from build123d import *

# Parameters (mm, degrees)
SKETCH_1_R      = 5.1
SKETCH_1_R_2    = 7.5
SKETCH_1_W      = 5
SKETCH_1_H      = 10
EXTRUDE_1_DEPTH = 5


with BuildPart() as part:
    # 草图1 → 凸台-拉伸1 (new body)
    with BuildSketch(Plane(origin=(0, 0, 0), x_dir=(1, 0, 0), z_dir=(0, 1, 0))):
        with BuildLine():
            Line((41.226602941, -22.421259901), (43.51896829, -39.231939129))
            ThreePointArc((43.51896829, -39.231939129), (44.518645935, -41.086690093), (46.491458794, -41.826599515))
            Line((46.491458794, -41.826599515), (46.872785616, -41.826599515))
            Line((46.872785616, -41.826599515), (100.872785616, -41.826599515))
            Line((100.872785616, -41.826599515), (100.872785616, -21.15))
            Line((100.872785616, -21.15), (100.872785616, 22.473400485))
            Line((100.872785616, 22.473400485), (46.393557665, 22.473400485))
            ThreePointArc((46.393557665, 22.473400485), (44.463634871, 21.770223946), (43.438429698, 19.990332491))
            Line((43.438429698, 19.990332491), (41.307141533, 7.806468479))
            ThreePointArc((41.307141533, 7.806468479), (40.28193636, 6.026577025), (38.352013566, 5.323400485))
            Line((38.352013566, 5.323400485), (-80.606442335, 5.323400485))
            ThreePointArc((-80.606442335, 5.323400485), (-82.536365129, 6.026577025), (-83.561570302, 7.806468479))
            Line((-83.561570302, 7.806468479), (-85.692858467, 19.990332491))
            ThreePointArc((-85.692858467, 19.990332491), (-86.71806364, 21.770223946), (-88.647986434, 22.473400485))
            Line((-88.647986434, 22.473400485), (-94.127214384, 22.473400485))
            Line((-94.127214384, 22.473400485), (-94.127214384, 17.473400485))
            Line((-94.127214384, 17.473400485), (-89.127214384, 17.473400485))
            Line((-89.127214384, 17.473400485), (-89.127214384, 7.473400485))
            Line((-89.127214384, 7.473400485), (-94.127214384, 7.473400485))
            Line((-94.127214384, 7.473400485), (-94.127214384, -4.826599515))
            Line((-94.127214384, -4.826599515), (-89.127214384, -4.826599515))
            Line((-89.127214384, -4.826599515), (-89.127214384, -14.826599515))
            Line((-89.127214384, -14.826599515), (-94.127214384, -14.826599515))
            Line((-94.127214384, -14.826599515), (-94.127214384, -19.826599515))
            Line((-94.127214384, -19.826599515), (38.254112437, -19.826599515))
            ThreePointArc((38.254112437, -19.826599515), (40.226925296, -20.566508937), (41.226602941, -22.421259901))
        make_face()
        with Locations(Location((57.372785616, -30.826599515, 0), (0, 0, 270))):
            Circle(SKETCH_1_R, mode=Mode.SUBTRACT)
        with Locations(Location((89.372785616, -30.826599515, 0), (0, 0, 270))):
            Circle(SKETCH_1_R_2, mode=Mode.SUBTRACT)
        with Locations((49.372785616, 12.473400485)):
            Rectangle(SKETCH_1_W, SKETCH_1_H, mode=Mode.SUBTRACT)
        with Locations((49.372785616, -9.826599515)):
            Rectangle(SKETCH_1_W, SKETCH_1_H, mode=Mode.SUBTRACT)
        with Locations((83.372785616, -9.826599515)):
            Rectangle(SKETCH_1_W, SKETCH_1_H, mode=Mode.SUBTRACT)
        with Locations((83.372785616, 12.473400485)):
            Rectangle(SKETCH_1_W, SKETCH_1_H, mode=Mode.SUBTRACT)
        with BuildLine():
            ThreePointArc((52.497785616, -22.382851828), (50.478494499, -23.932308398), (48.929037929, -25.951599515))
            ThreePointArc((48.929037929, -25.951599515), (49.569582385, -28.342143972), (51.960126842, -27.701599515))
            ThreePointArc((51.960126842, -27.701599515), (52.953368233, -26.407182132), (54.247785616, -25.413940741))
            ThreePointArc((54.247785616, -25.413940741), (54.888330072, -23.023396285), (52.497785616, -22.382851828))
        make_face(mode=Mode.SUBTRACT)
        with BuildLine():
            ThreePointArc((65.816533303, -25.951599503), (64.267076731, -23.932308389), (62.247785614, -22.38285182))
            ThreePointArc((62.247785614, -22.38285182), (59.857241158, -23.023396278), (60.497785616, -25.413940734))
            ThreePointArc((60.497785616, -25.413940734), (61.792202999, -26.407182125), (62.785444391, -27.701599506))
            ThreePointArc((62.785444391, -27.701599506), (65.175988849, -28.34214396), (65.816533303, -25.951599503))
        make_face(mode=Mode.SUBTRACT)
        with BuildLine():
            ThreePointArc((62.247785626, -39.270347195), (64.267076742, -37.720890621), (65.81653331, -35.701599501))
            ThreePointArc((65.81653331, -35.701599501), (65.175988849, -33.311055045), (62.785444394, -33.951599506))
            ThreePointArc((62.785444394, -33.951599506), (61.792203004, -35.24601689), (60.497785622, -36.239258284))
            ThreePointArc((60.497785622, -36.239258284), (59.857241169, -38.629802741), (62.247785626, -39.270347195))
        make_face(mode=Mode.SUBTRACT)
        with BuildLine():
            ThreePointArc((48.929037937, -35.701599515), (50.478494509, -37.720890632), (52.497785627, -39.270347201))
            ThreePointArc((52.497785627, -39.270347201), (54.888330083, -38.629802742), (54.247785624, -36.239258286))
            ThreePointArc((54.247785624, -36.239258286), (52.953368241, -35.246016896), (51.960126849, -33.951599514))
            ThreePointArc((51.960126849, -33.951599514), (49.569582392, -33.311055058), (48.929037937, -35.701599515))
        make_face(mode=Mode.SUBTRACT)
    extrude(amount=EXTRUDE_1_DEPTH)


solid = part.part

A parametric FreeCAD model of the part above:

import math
import FreeCAD as App
import Part
import Sketcher

V = App.Vector


def add_polygon(sketch, points):
    """Adds a closed chain of lines whose ends are joined by coincident constraints."""
    first, n = sketch.GeometryCount, len(points)
    for a, b in zip(points, points[1:] + points[:1]):
        sketch.addGeometry(Part.LineSegment(App.Vector(*a, 0), App.Vector(*b, 0)), False)
    for i in range(n):
        sketch.addConstraint(Sketcher.Constraint("Coincident", first + i, 2, first + (i + 1) % n, 1))

doc = App.newDocument("Part")
body = doc.addObject("PartDesign::Body", "Body")

# Sketch on XZ plane
sketch1 = body.newObject("Sketcher::SketchObject", "Sketch")
sketch1.AttachmentSupport = (doc.getObject("XZ_Plane"), [""])
sketch1.MapMode = "FlatFace"
sketch1.addGeometry(Part.LineSegment(V(41.2, 22.4, 0), V(43.5, 39.2, 0)), False)  # 0
sketch1.addGeometry(Part.ArcOfCircle(Part.Circle(V(46.5, 38.8, 0), V(0, 0, 1), 3), math.radians(90), math.radians(172)), False)  # 1
sketch1.addGeometry(Part.LineSegment(V(46.5, 41.8, 0), V(100.9, 41.8, 0)), False)  # 2
sketch1.addGeometry(Part.LineSegment(V(100.9, 41.8, 0), V(100.9, -22.5, 0)), False)  # 3
sketch1.addGeometry(Part.LineSegment(V(100.9, -22.5, 0), V(46.4, -22.5, 0)), False)  # 4
sketch1.addGeometry(Part.ArcOfCircle(Part.Circle(V(46.4, -19.5, 0), V(0, 0, 1), 3), math.radians(-170), math.radians(-90)), False)  # 5
sketch1.addGeometry(Part.LineSegment(V(43.4, -20, 0), V(41.3, -7.8, 0)), False)  # 6
sketch1.addGeometry(Part.ArcOfCircle(Part.Circle(V(38.4, -8.3, 0), V(0, 0, 1), 3), math.radians(10), math.radians(90)), False)  # 7
sketch1.addGeometry(Part.LineSegment(V(38.4, -5.3, 0), V(-80.6, -5.3, 0)), False)  # 8
sketch1.addGeometry(Part.ArcOfCircle(Part.Circle(V(-80.6, -8.3, 0), V(0, 0, 1), 3), math.radians(90), math.radians(170)), False)  # 9
sketch1.addGeometry(Part.LineSegment(V(-83.6, -7.8, 0), V(-85.7, -20, 0)), False)  # 10
sketch1.addGeometry(Part.ArcOfCircle(Part.Circle(V(-88.6, -19.5, 0), V(0, 0, 1), 3), math.radians(-90), math.radians(-10)), False)  # 11
sketch1.addGeometry(Part.LineSegment(V(-88.6, -22.5, 0), V(-94.1, -22.5, 0)), False)  # 12
sketch1.addGeometry(Part.LineSegment(V(-94.1, -22.5, 0), V(-94.1, -17.5, 0)), False)  # 13
sketch1.addGeometry(Part.LineSegment(V(-94.1, -17.5, 0), V(-89.1, -17.5, 0)), False)  # 14
sketch1.addGeometry(Part.LineSegment(V(-89.1, -17.5, 0), V(-89.1, -7.5, 0)), False)  # 15
sketch1.addGeometry(Part.LineSegment(V(-89.1, -7.5, 0), V(-94.1, -7.5, 0)), False)  # 16
sketch1.addGeometry(Part.LineSegment(V(-94.1, -7.5, 0), V(-94.1, 4.8, 0)), False)  # 17
sketch1.addGeometry(Part.LineSegment(V(-94.1, 4.8, 0), V(-89.1, 4.8, 0)), False)  # 18
sketch1.addGeometry(Part.LineSegment(V(-89.1, 4.8, 0), V(-89.1, 14.8, 0)), False)  # 19
sketch1.addGeometry(Part.LineSegment(V(-89.1, 14.8, 0), V(-94.1, 14.8, 0)), False)  # 20
sketch1.addGeometry(Part.LineSegment(V(-94.1, 14.8, 0), V(-94.1, 19.8, 0)), False)  # 21
sketch1.addGeometry(Part.LineSegment(V(-94.1, 19.8, 0), V(38.3, 19.8, 0)), False)  # 22
sketch1.addGeometry(Part.ArcOfCircle(Part.Circle(V(38.3, 22.8, 0), V(0, 0, 1), 3), math.radians(-90), math.radians(-8)), False)  # 23
sketch1.addGeometry(Part.ArcOfCircle(Part.Circle(V(57.4, 30.8, 0), V(0, 0, 1), 9.7), math.radians(120), math.radians(150)), False)  # 24
sketch1.addGeometry(Part.ArcOfCircle(Part.Circle(V(50.4, 34.8, 0), V(0, 0, 1), 1.8), math.radians(150), math.radians(330)), False)  # 25
sketch1.addGeometry(Part.ArcOfCircle(Part.Circle(V(57.4, 30.8, 0), V(0, 0, 1), 6.2), math.radians(120), math.radians(150)), False)  # 26
sketch1.addGeometry(Part.ArcOfCircle(Part.Circle(V(53.4, 37.8, 0), V(0, 0, 1), 1.8), math.radians(-60), math.radians(120)), False)  # 27
sketch1.addGeometry(Part.ArcOfCircle(Part.Circle(V(57.4, 30.8, 0), V(0, 0, 1), 9.7), math.radians(-150), math.radians(-120)), False)  # 28
sketch1.addGeometry(Part.ArcOfCircle(Part.Circle(V(53.4, 23.9, 0), V(0, 0, 1), 1.8), math.radians(-120), math.radians(60)), False)  # 29
sketch1.addGeometry(Part.ArcOfCircle(Part.Circle(V(57.4, 30.8, 0), V(0, 0, 1), 6.2), math.radians(-150), math.radians(-120)), False)  # 30
sketch1.addGeometry(Part.ArcOfCircle(Part.Circle(V(50.4, 26.8, 0), V(0, 0, 1), 1.8), math.radians(30), math.radians(210)), False)  # 31
sketch1.addGeometry(Part.Circle(V(57.4, 30.8, 0), V(0, 0, 1), 5.1), False)  # 32
sketch1.addGeometry(Part.ArcOfCircle(Part.Circle(V(57.4, 30.8, 0), V(0, 0, 1), 9.7), math.radians(30), math.radians(60)), False)  # 33
sketch1.addGeometry(Part.ArcOfCircle(Part.Circle(V(61.4, 37.8, 0), V(0, 0, 1), 1.8), math.radians(60), math.radians(240)), False)  # 34
sketch1.addGeometry(Part.ArcOfCircle(Part.Circle(V(57.4, 30.8, 0), V(0, 0, 1), 6.3), math.radians(30), math.radians(60)), False)  # 35
sketch1.addGeometry(Part.ArcOfCircle(Part.Circle(V(64.3, 34.8, 0), V(0, 0, 1), 1.8), math.radians(-150), math.radians(30)), False)  # 36
sketch1.addGeometry(Part.ArcOfCircle(Part.Circle(V(57.4, 30.8, 0), V(0, 0, 1), 9.8), math.radians(-60), math.radians(-30)), False)  # 37
sketch1.addGeometry(Part.ArcOfCircle(Part.Circle(V(64.3, 26.8, 0), V(0, 0, 1), 1.8), math.radians(-30), math.radians(150)), False)  # 38
sketch1.addGeometry(Part.ArcOfCircle(Part.Circle(V(57.4, 30.8, 0), V(0, 0, 1), 6.3), math.radians(-60), math.radians(-30)), False)  # 39
sketch1.addGeometry(Part.ArcOfCircle(Part.Circle(V(61.4, 23.9, 0), V(0, 0, 1), 1.8), math.radians(120), math.radians(300)), False)  # 40
sketch1.addGeometry(Part.Circle(V(89.4, 30.8, 0), V(0, 0, 1), 7.5), False)  # 41
add_polygon(sketch1, [(51.9, 14.8), (46.9, 14.8), (46.9, 4.8), (51.9, 4.8)])  # lines 42-45
add_polygon(sketch1, [(51.9, -7.5), (46.9, -7.5), (46.9, -17.5), (51.9, -17.5)])  # lines 46-49
add_polygon(sketch1, [(85.9, 14.8), (80.9, 14.8), (80.9, 4.8), (85.9, 4.8)])  # lines 50-53
add_polygon(sketch1, [(85.9, -7.5), (80.9, -7.5), (80.9, -17.5), (85.9, -17.5)])  # lines 54-57
sketch1.addConstraint([
    Sketcher.Constraint("Tangent", 0, 2, 1, 2),
    Sketcher.Constraint("Tangent", 1, 1, 2, 1),
    Sketcher.Constraint("Coincident", 2, 2, 3, 1),
    Sketcher.Constraint("Coincident", 3, 2, 4, 1),
    Sketcher.Constraint("Tangent", 4, 2, 5, 2),
    Sketcher.Constraint("Tangent", 5, 1, 6, 1),
    Sketcher.Constraint("Tangent", 6, 2, 7, 1),
    Sketcher.Constraint("Tangent", 7, 2, 8, 1),
    Sketcher.Constraint("Tangent", 8, 2, 9, 1),
    Sketcher.Constraint("Tangent", 9, 2, 10, 1),
    Sketcher.Constraint("Tangent", 10, 2, 11, 2),
    Sketcher.Constraint("Tangent", 11, 1, 12, 1),
    Sketcher.Constraint("Coincident", 12, 2, 13, 1),
    Sketcher.Constraint("Coincident", 13, 2, 14, 1),
    Sketcher.Constraint("Coincident", 14, 2, 15, 1),
    Sketcher.Constraint("Coincident", 15, 2, 16, 1),
    Sketcher.Constraint("Coincident", 16, 2, 17, 1),
    Sketcher.Constraint("Coincident", 17, 2, 18, 1),
    Sketcher.Constraint("Coincident", 18, 2, 19, 1),
    Sketcher.Constraint("Coincident", 19, 2, 20, 1),
    Sketcher.Constraint("Coincident", 20, 2, 21, 1),
    Sketcher.Constraint("Coincident", 21, 2, 22, 1),
    Sketcher.Constraint("Tangent", 22, 2, 23, 1),
    Sketcher.Constraint("Tangent", 23, 2, 0, 1),
    Sketcher.Constraint("Tangent", 24, 2, 25, 1),
    Sketcher.Constraint("Tangent", 25, 2, 26, 2),
    Sketcher.Constraint("Tangent", 26, 1, 27, 1),
    Sketcher.Constraint("Tangent", 27, 2, 24, 1),
    Sketcher.Constraint("Tangent", 28, 2, 29, 1),
    Sketcher.Constraint("Tangent", 29, 2, 30, 2),
    Sketcher.Constraint("Tangent", 30, 1, 31, 1),
    Sketcher.Constraint("Tangent", 31, 2, 28, 1),
    Sketcher.Constraint("Tangent", 33, 2, 34, 1),
    Sketcher.Constraint("Tangent", 34, 2, 35, 2),
    Sketcher.Constraint("Tangent", 35, 1, 36, 1),
    Sketcher.Constraint("Tangent", 36, 2, 33, 1),
    Sketcher.Constraint("Tangent", 37, 2, 38, 1),
    Sketcher.Constraint("Tangent", 38, 2, 39, 2),
    Sketcher.Constraint("Tangent", 39, 1, 40, 1),
    Sketcher.Constraint("Tangent", 40, 2, 37, 1),
    Sketcher.Constraint("Horizontal", 2),
    Sketcher.Constraint("Vertical", 3),
    Sketcher.Constraint("Horizontal", 4),
    Sketcher.Constraint("Horizontal", 8),
    Sketcher.Constraint("Horizontal", 12),
    Sketcher.Constraint("Vertical", 13),
    Sketcher.Constraint("Horizontal", 14),
    Sketcher.Constraint("Vertical", 15),
    Sketcher.Constraint("Horizontal", 16),
    Sketcher.Constraint("Vertical", 17),
    Sketcher.Constraint("Horizontal", 18),
    Sketcher.Constraint("Vertical", 19),
    Sketcher.Constraint("Horizontal", 20),
    Sketcher.Constraint("Vertical", 21),
    Sketcher.Constraint("Horizontal", 22),
    Sketcher.Constraint("Horizontal", 42),
    Sketcher.Constraint("Vertical", 43),
    Sketcher.Constraint("Horizontal", 44),
    Sketcher.Constraint("Vertical", 45),
    Sketcher.Constraint("Horizontal", 46),
    Sketcher.Constraint("Vertical", 47),
    Sketcher.Constraint("Horizontal", 48),
    Sketcher.Constraint("Vertical", 49),
    Sketcher.Constraint("Horizontal", 50),
    Sketcher.Constraint("Vertical", 51),
    Sketcher.Constraint("Horizontal", 52),
    Sketcher.Constraint("Vertical", 53),
    Sketcher.Constraint("Horizontal", 54),
    Sketcher.Constraint("Vertical", 55),
    Sketcher.Constraint("Horizontal", 56),
    Sketcher.Constraint("Vertical", 57),
    Sketcher.Constraint("Coincident", 26, 3, 24, 3),
    Sketcher.Constraint("Coincident", 28, 3, 24, 3),
    Sketcher.Constraint("Coincident", 30, 3, 24, 3),
    Sketcher.Constraint("Coincident", 32, 3, 24, 3),
    Sketcher.Constraint("Coincident", 33, 3, 24, 3),
    Sketcher.Constraint("Coincident", 35, 3, 24, 3),
    Sketcher.Constraint("Coincident", 37, 3, 24, 3),
    Sketcher.Constraint("Coincident", 39, 3, 24, 3),
    Sketcher.Constraint("Equal", 1, 5),
    Sketcher.Constraint("Equal", 5, 7),
    Sketcher.Constraint("Equal", 7, 9),
    Sketcher.Constraint("Equal", 9, 11),
    Sketcher.Constraint("Equal", 11, 23),
    Sketcher.Constraint("Equal", 24, 28),
    Sketcher.Constraint("Equal", 27, 29),
    Sketcher.Constraint("Equal", 28, 33),
    Sketcher.Constraint("Equal", 31, 34),
    Sketcher.Constraint("Equal", 33, 37),
    Sketcher.Constraint("Equal", 36, 38),
    Sketcher.Constraint("Horizontal", 5, 3, 11, 3),
    Sketcher.Constraint("Horizontal", 27, 3, 34, 3),
    Sketcher.Constraint("Horizontal", 25, 3, 36, 3),
    Sketcher.Constraint("Horizontal", 31, 3, 38, 3),
    Sketcher.Constraint("Horizontal", 29, 3, 40, 3),
    Sketcher.Constraint("Horizontal", 39, 3, 41, 3),
    Sketcher.Constraint("Horizontal", 6, 2, 9, 2),
    Sketcher.Constraint("Horizontal", 20, 2, 42, 2),
    Sketcher.Constraint("Horizontal", 18, 2, 43, 2),
    Sketcher.Constraint("Horizontal", 16, 2, 46, 2),
    Sketcher.Constraint("Horizontal", 14, 2, 47, 2),
    Sketcher.Constraint("Horizontal", 45, 2, 50, 2),
    Sketcher.Constraint("Horizontal", 44, 2, 51, 2),
    Sketcher.Constraint("Horizontal", 49, 2, 54, 2),
    Sketcher.Constraint("Horizontal", 48, 2, 55, 2),
    Sketcher.Constraint("Vertical", 27, 3, 29, 3),
    Sketcher.Constraint("Vertical", 25, 3, 31, 3),
    Sketcher.Constraint("Vertical", 13, 2, 16, 2),
    Sketcher.Constraint("Vertical", 15, 2, 18, 2),
    Sketcher.Constraint("Vertical", 17, 2, 20, 2),
    Sketcher.Constraint("Vertical", 43, 2, 46, 2),
    Sketcher.Constraint("Vertical", 45, 2, 48, 2),
    Sketcher.Constraint("Vertical", 51, 2, 54, 2),
    Sketcher.Constraint("Vertical", 53, 2, 56, 2),
    Sketcher.Constraint("Equal", 20, 42),
    Sketcher.Constraint("Equal", 48, 50),
    Sketcher.Constraint("Equal", 56, 13),
    Sketcher.Constraint("Equal", 15, 19),
    Sketcher.Constraint("Equal", 13, 21),
    Sketcher.Constraint("Diameter", 41, 15.0),
    Sketcher.Constraint("Radius", 1, 3.0),
    Sketcher.Constraint("Diameter", 32, 10.2),
    Sketcher.Constraint("DistanceX", 14, 1, 14, 2, 5.0),
    Sketcher.Constraint("DistanceY", 15, 1, 15, 2, 10.0),
    Sketcher.Constraint("Radius", 24, 9.75),
    Sketcher.Constraint("Radius", 25, 1.75),
    Sketcher.Constraint("DistanceY", 3, 2, 3, 1, 64.3),
    Sketcher.Constraint("DistanceY", 17, 1, 17, 2, 12.3),
    Sketcher.Constraint("DistanceY", -1, 1, 1, 3, 38.8266),
    Sketcher.Constraint("DistanceY", 7, 3, -1, 1, 8.3234),
    Sketcher.Constraint("DistanceY", -1, 1, 24, 3, 30.8266),
    Sketcher.Constraint("DistanceY", -1, 1, 25, 3, 34.8266),
    Sketcher.Constraint("Distance", 6, 12.368869),
    Sketcher.Constraint("DistanceX", 2, 1, 2, 2, 54.381327),
    Sketcher.Constraint("DistanceX", 4, 2, 4, 1, 54.479228),
    Sketcher.Constraint("DistanceX", 8, 2, 8, 1, 118.958456),
    Sketcher.Constraint("DistanceX", 12, 2, 12, 1, 5.479228),
    Sketcher.Constraint("DistanceX", 22, 1, 22, 2, 132.381327),
    Sketcher.Constraint("DistanceX", -1, 1, 1, 3, 46.491459),
    Sketcher.Constraint("DistanceX", -1, 1, 36, 3, 64.300989),
    Sketcher.Constraint("DistanceY", -1, 1, 26, 1, 36.239258),
    Sketcher.Constraint("DistanceX", -1, 1, 41, 3, 89.372786),
    Sketcher.Constraint("DistanceX", -1, 1, 42, 2, 46.872786),
    Sketcher.Constraint("DistanceX", -1, 1, 50, 2, 80.872786),
])
pad1 = body.newObject("PartDesign::Pad", "Pad")
pad1.Profile = sketch1
pad1.Length = 5
pad1.Reversed = True

doc.recompute()
